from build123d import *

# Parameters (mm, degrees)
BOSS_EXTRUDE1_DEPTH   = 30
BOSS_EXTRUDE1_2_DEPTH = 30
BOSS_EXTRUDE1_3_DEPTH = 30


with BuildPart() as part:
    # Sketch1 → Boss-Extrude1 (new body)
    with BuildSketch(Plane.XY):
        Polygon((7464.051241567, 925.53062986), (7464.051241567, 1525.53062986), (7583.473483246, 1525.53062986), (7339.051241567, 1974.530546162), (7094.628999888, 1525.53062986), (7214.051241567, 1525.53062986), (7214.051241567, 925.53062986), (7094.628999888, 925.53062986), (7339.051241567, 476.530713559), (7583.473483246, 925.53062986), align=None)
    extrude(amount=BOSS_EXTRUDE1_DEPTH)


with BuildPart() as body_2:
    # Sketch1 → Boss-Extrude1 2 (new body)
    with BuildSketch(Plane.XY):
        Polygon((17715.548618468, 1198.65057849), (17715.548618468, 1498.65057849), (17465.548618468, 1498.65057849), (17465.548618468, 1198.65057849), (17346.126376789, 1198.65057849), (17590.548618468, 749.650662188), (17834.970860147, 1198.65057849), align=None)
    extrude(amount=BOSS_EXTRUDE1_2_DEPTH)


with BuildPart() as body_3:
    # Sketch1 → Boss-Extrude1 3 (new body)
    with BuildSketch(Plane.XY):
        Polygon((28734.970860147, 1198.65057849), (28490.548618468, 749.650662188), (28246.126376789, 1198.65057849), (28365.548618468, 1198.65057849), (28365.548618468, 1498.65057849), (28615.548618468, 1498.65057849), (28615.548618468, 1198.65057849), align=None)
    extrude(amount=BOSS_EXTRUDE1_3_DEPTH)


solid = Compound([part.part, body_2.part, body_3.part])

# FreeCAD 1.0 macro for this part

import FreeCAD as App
import Part
import Sketcher

V = App.Vector

doc = App.newDocument("Part")
body = doc.addObject("PartDesign::Body", "Body")

# Sketch on XY plane
sketch1 = doc.addObject("Sketcher::SketchObject", "Sketch")
body.addObject(sketch1)
sketch1.AttachmentSupport = (doc.XY_Plane, [""])
sketch1.MapMode = "FlatFace"
sketch1.addGeometry(Part.LineSegment(V(7464.051242, 925.53063, 0), V(7464.051242, 1525.53063, 0)), False)
sketch1.addGeometry(Part.LineSegment(V(7464.051242, 1525.53063, 0), V(7583.473483, 1525.53063, 0)), False)
sketch1.addGeometry(Part.LineSegment(V(7583.473483, 1525.53063, 0), V(7339.051242, 1974.530546, 0)), False)
sketch1.addGeometry(Part.LineSegment(V(7339.051242, 1974.530546, 0), V(7094.629, 1525.53063, 0)), False)
sketch1.addGeometry(Part.LineSegment(V(7094.629, 1525.53063, 0), V(7214.051242, 1525.53063, 0)), False)
sketch1.addGeometry(Part.LineSegment(V(7214.051242, 1525.53063, 0), V(7214.051242, 925.53063, 0)), False)
sketch1.addGeometry(Part.LineSegment(V(7214.051242, 925.53063, 0), V(7094.629, 925.53063, 0)), False)
sketch1.addGeometry(Part.LineSegment(V(7094.629, 925.53063, 0), V(7339.051242, 476.530714, 0)), False)
sketch1.addGeometry(Part.LineSegment(V(7339.051242, 476.530714, 0), V(7583.473483, 925.53063, 0)), False)
sketch1.addGeometry(Part.LineSegment(V(7583.473483, 925.53063, 0), V(7464.051242, 925.53063, 0)), False)
sketch1.addConstraint(Sketcher.Constraint("Coincident", 0, 2, 1, 1))
sketch1.addConstraint(Sketcher.Constraint("Coincident", 1, 2, 2, 1))
sketch1.addConstraint(Sketcher.Constraint("Coincident", 2, 2, 3, 1))
sketch1.addConstraint(Sketcher.Constraint("Coincident", 3, 2, 4, 1))
sketch1.addConstraint(Sketcher.Constraint("Coincident", 4, 2, 5, 1))
sketch1.addConstraint(Sketcher.Constraint("Coincident", 5, 2, 6, 1))
sketch1.addConstraint(Sketcher.Constraint("Coincident", 6, 2, 7, 1))
sketch1.addConstraint(Sketcher.Constraint("Coincident", 7, 2, 8, 1))
sketch1.addConstraint(Sketcher.Constraint("Coincident", 8, 2, 9, 1))
sketch1.addConstraint(Sketcher.Constraint("Coincident", 9, 2, 0, 1))
sketch1.addConstraint(Sketcher.Constraint("Vertical", 0))
sketch1.addConstraint(Sketcher.Constraint("Horizontal", 1))
sketch1.addConstraint(Sketcher.Constraint("Horizontal", 4))
sketch1.addConstraint(Sketcher.Constraint("Vertical", 5))
sketch1.addConstraint(Sketcher.Constraint("Horizontal", 6))
sketch1.addConstraint(Sketcher.Constraint("Horizontal", 9))
sketch1.addConstraint(Sketcher.Constraint("Parallel", 2, 7))
sketch1.addConstraint(Sketcher.Constraint("Parallel", 3, 8))
sketch1.addConstraint(Sketcher.Constraint("Horizontal", 1, 2, 3, 2))
sketch1.addConstraint(Sketcher.Constraint("Horizontal", 6, 2, 8, 2))
sketch1.addConstraint(Sketcher.Constraint("Vertical", 3, 2, 6, 2))
sketch1.addConstraint(Sketcher.Constraint("Vertical", 2, 2, 7, 2))
sketch1.addConstraint(Sketcher.Constraint("Vertical", 1, 2, 8, 2))
sketch1.addConstraint(Sketcher.Constraint("Equal", 1, 4))
sketch1.addConstraint(Sketcher.Constraint("DistanceY", 0, 1, 0, 2, 600.0))
sketch1.addConstraint(Sketcher.Constraint("DistanceX", 2, 2, 0, 2, 125.0))
sketch1.addConstraint(Sketcher.Constraint("DistanceX", -1, 1, 3, 2, 7094.629))
sketch1.addConstraint(Sketcher.Constraint("DistanceX", 1, 1, 1, 2, 119.422242))
sketch1.addConstraint(Sketcher.Constraint("Distance", 2, 511.217329))
sketch1.addConstraint(Sketcher.Constraint("DistanceY", -1, 1, 0, 2, 1525.53063))
pad1 = doc.addObject("PartDesign::Pad", "Pad")
body.addObject(pad1)
pad1.Profile = sketch1
pad1.Length = 30
body2 = doc.addObject("PartDesign::Body", "Body001")

# Sketch on XY plane
sketch2 = doc.addObject("Sketcher::SketchObject", "Sketch001")
body2.addObject(sketch2)
sketch2.AttachmentSupport = (doc.getObject("XY_Plane001"), [""])
sketch2.MapMode = "FlatFace"
sketch2.addGeometry(Part.LineSegment(V(17715.548618, 1198.650578, 0), V(17715.548618, 1498.650578, 0)), False)
sketch2.addGeometry(Part.LineSegment(V(17715.548618, 1498.650578, 0), V(17465.548618, 1498.650578, 0)), False)
sketch2.addGeometry(Part.LineSegment(V(17465.548618, 1498.650578, 0), V(17465.548618, 1198.650578, 0)), False)
sketch2.addGeometry(Part.LineSegment(V(17465.548618, 1198.650578, 0), V(17346.126377, 1198.650578, 0)), False)
sketch2.addGeometry(Part.LineSegment(V(17346.126377, 1198.650578, 0), V(17590.548618, 749.650662, 0)), False)
sketch2.addGeometry(Part.LineSegment(V(17590.548618, 749.650662, 0), V(17834.97086, 1198.650578, 0)), False)
sketch2.addGeometry(Part.LineSegment(V(17834.97086, 1198.650578, 0), V(17715.548618, 1198.650578, 0)), False)
sketch2.addConstraint(Sketcher.Constraint("Coincident", 0, 2, 1, 1))
sketch2.addConstraint(Sketcher.Constraint("Coincident", 1, 2, 2, 1))
sketch2.addConstraint(Sketcher.Constraint("Coincident", 2, 2, 3, 1))
sketch2.addConstraint(Sketcher.Constraint("Coincident", 3, 2, 4, 1))
sketch2.addConstraint(Sketcher.Constraint("Coincident", 4, 2, 5, 1))
sketch2.addConstraint(Sketcher.Constraint("Coincident", 5, 2, 6, 1))
sketch2.addConstraint(Sketcher.Constraint("Coincident", 6, 2, 0, 1))
sketch2.addConstraint(Sketcher.Constraint("Vertical", 0))
sketch2.addConstraint(Sketcher.Constraint("Horizontal", 1))
sketch2.addConstraint(Sketcher.Constraint("Vertical", 2))
sketch2.addConstraint(Sketcher.Constraint("Horizontal", 3))
sketch2.addConstraint(Sketcher.Constraint("Horizontal", 6))
sketch2.addConstraint(Sketcher.Constraint("Horizontal", 3, 2, 5, 2))
sketch2.addConstraint(Sketcher.Constraint("Equal", 3, 6))
sketch2.addConstraint(Sketcher.Constraint("Equal", 4, 5))
sketch2.addConstraint(Sketcher.Constraint("DistanceX", 1, 2, 1, 1, 250.0))
sketch2.addConstraint(Sketcher.Constraint("DistanceY", 0, 1, 0, 2, 300.0))
sketch2.addConstraint(Sketcher.Constraint("DistanceX", 3, 2, 3, 1, 119.422242))
sketch2.addConstraint(Sketcher.Constraint("Distance", 4, 511.217329))
sketch2.addConstraint(Sketcher.Constraint("DistanceX", -1, 1, 0, 2, 17715.548618))
sketch2.addConstraint(Sketcher.Constraint("DistanceY", -1, 1, 0, 2, 1498.650578))
pad2 = doc.addObject("PartDesign::Pad", "Pad001")
body2.addObject(pad2)
pad2.Profile = sketch2
pad2.Length = 30
body3 = doc.addObject("PartDesign::Body", "Body002")

# Sketch on XY plane
sketch3 = doc.addObject("Sketcher::SketchObject", "Sketch002")
body3.addObject(sketch3)
sketch3.AttachmentSupport = (doc.getObject("XY_Plane002"), [""])
sketch3.MapMode = "FlatFace"
sketch3.addGeometry(Part.LineSegment(V(28490.548618, 749.650662, 0), V(28734.97086, 1198.650578, 0)), False)
sketch3.addGeometry(Part.LineSegment(V(28734.97086, 1198.650578, 0), V(28615.548618, 1198.650578, 0)), False)
sketch3.addGeometry(Part.LineSegment(V(28615.548618, 1198.650578, 0), V(28615.548618, 1498.650578, 0)), False)
sketch3.addGeometry(Part.LineSegment(V(28615.548618, 1498.650578, 0), V(28365.548618, 1498.650578, 0)), False)
sketch3.addGeometry(Part.LineSegment(V(28365.548618, 1498.650578, 0), V(28365.548618, 1198.650578, 0)), False)
sketch3.addGeometry(Part.LineSegment(V(28365.548618, 1198.650578, 0), V(28246.126377, 1198.650578, 0)), False)
sketch3.addGeometry(Part.LineSegment(V(28246.126377, 1198.650578, 0), V(28490.548618, 749.650662, 0)), False)
sketch3.addConstraint(Sketcher.Constraint("Coincident", 0, 2, 1, 1))
sketch3.addConstraint(Sketcher.Constraint("Coincident", 1, 2, 2, 1))
sketch3.addConstraint(Sketcher.Constraint("Coincident", 2, 2, 3, 1))
sketch3.addConstraint(Sketcher.Constraint("Coincident", 3, 2, 4, 1))
sketch3.addConstraint(Sketcher.Constraint("Coincident", 4, 2, 5, 1))
sketch3.addConstraint(Sketcher.Constraint("Coincident", 5, 2, 6, 1))
sketch3.addConstraint(Sketcher.Constraint("Coincident", 6, 2, 0, 1))
sketch3.addConstraint(Sketcher.Constraint("Horizontal", 1))
sketch3.addConstraint(Sketcher.Constraint("Vertical", 2))
sketch3.addConstraint(Sketcher.Constraint("Horizontal", 3))
sketch3.addConstraint(Sketcher.Constraint("Vertical", 4))
sketch3.addConstraint(Sketcher.Constraint("Horizontal", 5))
sketch3.addConstraint(Sketcher.Constraint("Horizontal", 1, 2, 4, 2))
sketch3.addConstraint(Sketcher.Constraint("Equal", 1, 5))
sketch3.addConstraint(Sketcher.Constraint("Equal", 0, 6))
sketch3.addConstraint(Sketcher.Constraint("DistanceX", 3, 2, 3, 1, 250.0))
sketch3.addConstraint(Sketcher.Constraint("DistanceY", 2, 1, 2, 2, 300.0))
sketch3.addConstraint(Sketcher.Constraint("DistanceX", 1, 2, 1, 1, 119.422242))
sketch3.addConstraint(Sketcher.Constraint("Distance", 0, 511.217329))
sketch3.addConstraint(Sketcher.Constraint("DistanceX", -1, 1, 0, 2, 28734.97086))
sketch3.addConstraint(Sketcher.Constraint("DistanceY", -1, 1, 0, 2, 1198.650578))
pad3 = doc.addObject("PartDesign::Pad", "Pad002")
body3.addObject(pad3)
pad3.Profile = sketch3
pad3.Length = 30

doc.recompute()
